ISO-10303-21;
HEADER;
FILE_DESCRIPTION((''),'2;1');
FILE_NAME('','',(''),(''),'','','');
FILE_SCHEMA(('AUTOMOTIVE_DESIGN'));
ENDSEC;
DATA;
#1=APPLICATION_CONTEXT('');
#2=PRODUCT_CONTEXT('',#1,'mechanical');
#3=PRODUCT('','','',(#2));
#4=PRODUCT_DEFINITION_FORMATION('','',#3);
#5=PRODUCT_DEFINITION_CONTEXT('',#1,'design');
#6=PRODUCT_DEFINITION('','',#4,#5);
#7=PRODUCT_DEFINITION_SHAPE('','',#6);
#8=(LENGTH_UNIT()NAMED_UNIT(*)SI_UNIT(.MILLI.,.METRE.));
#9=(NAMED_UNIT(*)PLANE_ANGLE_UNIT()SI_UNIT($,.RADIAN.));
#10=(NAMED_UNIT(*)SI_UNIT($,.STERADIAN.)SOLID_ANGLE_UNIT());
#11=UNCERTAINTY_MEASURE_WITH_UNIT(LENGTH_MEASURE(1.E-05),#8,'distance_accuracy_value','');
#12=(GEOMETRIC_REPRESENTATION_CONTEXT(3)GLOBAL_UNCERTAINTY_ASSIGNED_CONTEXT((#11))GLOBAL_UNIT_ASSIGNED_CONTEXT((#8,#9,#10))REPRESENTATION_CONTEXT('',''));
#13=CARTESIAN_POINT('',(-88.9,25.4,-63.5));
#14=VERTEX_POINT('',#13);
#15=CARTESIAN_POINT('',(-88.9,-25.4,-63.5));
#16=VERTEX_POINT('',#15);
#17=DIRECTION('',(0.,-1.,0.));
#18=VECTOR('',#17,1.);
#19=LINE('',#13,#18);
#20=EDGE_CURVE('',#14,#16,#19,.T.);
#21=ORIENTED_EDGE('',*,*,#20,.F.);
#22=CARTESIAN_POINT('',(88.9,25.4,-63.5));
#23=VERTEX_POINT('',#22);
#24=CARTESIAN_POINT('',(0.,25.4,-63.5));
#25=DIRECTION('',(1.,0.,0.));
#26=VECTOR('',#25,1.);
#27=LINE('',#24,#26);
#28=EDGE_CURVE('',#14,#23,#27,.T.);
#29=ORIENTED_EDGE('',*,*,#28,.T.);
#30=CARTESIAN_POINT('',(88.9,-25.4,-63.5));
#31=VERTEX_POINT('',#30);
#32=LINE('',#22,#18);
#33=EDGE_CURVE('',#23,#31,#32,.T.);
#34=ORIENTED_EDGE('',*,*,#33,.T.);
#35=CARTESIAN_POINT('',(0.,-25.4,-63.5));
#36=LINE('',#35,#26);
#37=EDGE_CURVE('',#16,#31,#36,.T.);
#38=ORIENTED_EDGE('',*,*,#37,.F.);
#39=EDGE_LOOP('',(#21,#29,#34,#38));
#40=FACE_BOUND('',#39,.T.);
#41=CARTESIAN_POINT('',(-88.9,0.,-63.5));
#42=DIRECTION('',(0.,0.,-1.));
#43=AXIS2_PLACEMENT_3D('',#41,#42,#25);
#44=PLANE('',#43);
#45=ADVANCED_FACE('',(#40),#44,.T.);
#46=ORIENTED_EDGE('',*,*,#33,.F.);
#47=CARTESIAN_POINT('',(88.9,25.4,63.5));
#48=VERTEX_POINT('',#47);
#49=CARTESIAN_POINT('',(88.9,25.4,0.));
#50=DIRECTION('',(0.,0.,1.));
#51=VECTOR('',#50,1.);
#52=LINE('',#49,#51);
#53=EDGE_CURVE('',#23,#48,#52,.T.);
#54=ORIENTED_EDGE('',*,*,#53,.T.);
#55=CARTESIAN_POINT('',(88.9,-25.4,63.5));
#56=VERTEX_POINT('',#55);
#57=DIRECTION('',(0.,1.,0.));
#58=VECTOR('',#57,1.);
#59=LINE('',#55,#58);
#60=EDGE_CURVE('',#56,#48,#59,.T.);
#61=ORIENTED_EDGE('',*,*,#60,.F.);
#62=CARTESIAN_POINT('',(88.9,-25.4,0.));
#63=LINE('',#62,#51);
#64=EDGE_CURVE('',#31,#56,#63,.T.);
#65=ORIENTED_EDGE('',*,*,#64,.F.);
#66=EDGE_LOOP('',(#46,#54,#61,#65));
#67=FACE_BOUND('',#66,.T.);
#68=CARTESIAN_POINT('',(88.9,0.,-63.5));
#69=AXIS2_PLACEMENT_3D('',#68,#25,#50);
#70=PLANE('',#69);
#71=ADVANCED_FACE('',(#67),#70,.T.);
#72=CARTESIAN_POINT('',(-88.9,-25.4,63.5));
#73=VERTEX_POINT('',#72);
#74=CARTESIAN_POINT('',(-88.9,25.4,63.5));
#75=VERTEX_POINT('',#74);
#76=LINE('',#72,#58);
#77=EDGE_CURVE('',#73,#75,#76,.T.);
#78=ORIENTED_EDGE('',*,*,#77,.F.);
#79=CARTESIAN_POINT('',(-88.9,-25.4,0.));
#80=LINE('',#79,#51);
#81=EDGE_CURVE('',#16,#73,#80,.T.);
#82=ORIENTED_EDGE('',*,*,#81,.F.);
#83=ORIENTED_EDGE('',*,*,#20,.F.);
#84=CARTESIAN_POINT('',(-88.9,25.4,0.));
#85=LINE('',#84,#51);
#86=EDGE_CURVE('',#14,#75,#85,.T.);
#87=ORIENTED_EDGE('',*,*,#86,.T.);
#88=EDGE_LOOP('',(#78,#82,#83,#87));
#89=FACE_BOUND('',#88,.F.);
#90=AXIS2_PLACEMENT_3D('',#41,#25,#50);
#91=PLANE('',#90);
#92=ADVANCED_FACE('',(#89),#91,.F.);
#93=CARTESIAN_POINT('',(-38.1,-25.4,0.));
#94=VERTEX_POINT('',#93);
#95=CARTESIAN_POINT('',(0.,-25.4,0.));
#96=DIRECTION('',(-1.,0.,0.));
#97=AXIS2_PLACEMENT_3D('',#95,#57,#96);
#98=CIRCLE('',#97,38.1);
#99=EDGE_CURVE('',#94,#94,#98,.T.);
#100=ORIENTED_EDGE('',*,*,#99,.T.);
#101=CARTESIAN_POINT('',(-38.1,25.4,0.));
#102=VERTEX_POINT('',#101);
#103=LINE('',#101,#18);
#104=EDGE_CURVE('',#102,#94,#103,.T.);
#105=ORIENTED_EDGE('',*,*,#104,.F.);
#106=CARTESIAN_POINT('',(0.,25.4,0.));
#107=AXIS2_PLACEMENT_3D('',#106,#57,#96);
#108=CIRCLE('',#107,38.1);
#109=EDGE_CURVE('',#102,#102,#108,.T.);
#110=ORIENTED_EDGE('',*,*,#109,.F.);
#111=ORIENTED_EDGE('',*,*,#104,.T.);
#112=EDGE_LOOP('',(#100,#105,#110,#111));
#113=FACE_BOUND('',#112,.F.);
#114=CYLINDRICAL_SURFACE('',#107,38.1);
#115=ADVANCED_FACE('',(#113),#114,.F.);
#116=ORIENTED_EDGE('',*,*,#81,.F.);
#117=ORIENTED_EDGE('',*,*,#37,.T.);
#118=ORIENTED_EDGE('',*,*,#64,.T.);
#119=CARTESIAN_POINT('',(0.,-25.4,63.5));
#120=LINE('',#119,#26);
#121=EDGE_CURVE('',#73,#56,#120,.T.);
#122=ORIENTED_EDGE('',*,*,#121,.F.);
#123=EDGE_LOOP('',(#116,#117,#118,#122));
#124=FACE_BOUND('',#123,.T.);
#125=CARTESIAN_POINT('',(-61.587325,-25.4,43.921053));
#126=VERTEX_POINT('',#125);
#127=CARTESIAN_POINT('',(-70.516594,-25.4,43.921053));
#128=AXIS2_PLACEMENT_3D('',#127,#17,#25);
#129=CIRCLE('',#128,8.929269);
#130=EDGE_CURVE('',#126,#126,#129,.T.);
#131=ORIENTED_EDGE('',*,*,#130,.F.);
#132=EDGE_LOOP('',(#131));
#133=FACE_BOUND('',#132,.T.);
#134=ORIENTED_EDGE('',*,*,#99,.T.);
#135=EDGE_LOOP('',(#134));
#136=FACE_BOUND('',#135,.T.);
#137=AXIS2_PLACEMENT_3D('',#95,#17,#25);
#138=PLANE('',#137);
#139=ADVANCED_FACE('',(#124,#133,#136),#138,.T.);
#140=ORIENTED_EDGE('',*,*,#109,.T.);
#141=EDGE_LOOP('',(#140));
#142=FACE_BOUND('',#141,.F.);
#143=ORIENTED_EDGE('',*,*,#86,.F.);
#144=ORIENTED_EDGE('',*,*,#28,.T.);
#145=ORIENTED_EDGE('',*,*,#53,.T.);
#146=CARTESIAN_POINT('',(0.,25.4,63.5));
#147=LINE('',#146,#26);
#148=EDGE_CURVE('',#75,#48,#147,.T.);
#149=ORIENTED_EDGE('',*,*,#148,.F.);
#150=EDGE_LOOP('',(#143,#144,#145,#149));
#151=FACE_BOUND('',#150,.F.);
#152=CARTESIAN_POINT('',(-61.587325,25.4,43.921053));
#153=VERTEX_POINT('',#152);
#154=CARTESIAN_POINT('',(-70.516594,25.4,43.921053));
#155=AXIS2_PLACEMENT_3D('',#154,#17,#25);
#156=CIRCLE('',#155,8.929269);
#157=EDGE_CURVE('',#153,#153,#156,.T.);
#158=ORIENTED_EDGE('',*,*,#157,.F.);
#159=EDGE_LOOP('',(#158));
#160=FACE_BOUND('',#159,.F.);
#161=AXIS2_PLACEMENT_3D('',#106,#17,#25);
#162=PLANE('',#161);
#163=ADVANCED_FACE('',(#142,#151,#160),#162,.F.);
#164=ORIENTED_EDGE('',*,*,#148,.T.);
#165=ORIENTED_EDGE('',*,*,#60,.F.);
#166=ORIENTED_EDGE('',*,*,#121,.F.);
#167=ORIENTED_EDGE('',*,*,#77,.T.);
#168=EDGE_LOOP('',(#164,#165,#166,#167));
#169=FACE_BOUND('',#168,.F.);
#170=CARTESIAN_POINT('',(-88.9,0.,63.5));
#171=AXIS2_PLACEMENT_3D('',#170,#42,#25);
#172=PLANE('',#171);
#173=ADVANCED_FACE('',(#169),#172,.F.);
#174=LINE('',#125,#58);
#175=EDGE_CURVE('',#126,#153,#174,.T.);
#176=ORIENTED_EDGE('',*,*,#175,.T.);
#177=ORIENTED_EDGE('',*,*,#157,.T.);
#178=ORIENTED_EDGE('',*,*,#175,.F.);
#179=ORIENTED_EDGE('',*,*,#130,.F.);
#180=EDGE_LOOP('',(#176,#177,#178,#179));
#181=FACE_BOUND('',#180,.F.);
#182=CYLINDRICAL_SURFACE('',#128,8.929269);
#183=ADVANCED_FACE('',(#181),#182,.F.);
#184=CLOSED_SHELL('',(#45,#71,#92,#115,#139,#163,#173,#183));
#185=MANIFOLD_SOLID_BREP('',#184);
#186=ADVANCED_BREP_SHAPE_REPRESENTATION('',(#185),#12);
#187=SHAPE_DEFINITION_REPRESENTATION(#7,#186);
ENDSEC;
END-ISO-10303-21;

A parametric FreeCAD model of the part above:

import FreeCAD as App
import Part
import Sketcher

V = App.Vector
Q = App.Units.Quantity


def add_polygon(sketch, points):
    """Adds a closed chain of lines whose ends are joined by coincident constraints."""
    first, n = sketch.GeometryCount, len(points)
    for a, b in zip(points, points[1:] + points[:1]):
        sketch.addGeometry(Part.LineSegment(App.Vector(*a, 0), App.Vector(*b, 0)), False)
    for i in range(n):
        sketch.addConstraint(Sketcher.Constraint("Coincident", first + i, 2, first + (i + 1) % n, 1))

doc = App.newDocument("Part")
body = doc.addObject("PartDesign::Body", "Body")

# Sketch on XZ plane
sketch1 = doc.addObject("Sketcher::SketchObject", "Sketch")
body.addObject(sketch1)
sketch1.AttachmentSupport = (doc.XZ_Plane, [""])
sketch1.MapMode = "FlatFace"
add_polygon(sketch1, [(-88.9, 63.5), (-88.9, -63.5), (88.9, -63.5), (88.9, 63.5)])  # lines 0-3
sketch1.addConstraint([
    Sketcher.Constraint("Vertical", 0),
    Sketcher.Constraint("Horizontal", 1),
    Sketcher.Constraint("Vertical", 2),
    Sketcher.Constraint("Horizontal", 3),
    Sketcher.Constraint("Symmetric", 0, 2, 2, 2, -1, 1),
    Sketcher.Constraint("DistanceX", 1, 1, 1, 2, Q("7 in")),
    Sketcher.Constraint("DistanceY", 0, 2, 0, 1, Q("5 in")),
])
pad1 = doc.addObject("PartDesign::Pad", "Pad")
body.addObject(pad1)
pad1.Profile = sketch1
pad1.Length = Q("2 in")
pad1.Midplane = True

# Sketch on XZ plane
sketch2 = doc.addObject("Sketcher::SketchObject", "Sketch001")
body.addObject(sketch2)
sketch2.AttachmentSupport = (doc.XZ_Plane, [""])
sketch2.MapMode = "FlatFace"
sketch2.AttachmentOffset = App.Placement(V(0, 0, -1 * 25.4), App.Rotation())
sketch2.addGeometry(Part.Circle(V(0, 0, 0), V(0, 0, 1), 38.1), False)
sketch2.addConstraint([
    Sketcher.Constraint("Coincident", 0, 3, -1, 1),
    Sketcher.Constraint("Diameter", 0, Q("3 in")),
])
pocket1 = doc.addObject("PartDesign::Pocket", "Pocket")
body.addObject(pocket1)
pocket1.Profile = sketch2
pocket1.Type = "ThroughAll"
pocket1.Reversed = True

# Sketch on XZ plane
sketch3 = doc.addObject("Sketcher::SketchObject", "Sketch002")
body.addObject(sketch3)
sketch3.AttachmentSupport = (doc.XZ_Plane, [""])
sketch3.MapMode = "FlatFace"
sketch3.AttachmentOffset = App.Placement(V(0, 0, 1 * 25.4), App.Rotation())
sketch3.addGeometry(Part.Circle(V(-70.516594, 43.921053, 0), V(0, 0, 1), 8.929269), False)
sketch3.addConstraint([
    Sketcher.Constraint("Diameter", 0, 17.858538),
    Sketcher.Constraint("DistanceX", 0, 3, -1, 1, 70.516594),
    Sketcher.Constraint("DistanceY", -1, 1, 0, 3, 43.921053),
])
pocket2 = doc.addObject("PartDesign::Pocket", "Pocket001")
body.addObject(pocket2)
pocket2.Profile = sketch3
pocket2.Type = "ThroughAll"

doc.recompute()
